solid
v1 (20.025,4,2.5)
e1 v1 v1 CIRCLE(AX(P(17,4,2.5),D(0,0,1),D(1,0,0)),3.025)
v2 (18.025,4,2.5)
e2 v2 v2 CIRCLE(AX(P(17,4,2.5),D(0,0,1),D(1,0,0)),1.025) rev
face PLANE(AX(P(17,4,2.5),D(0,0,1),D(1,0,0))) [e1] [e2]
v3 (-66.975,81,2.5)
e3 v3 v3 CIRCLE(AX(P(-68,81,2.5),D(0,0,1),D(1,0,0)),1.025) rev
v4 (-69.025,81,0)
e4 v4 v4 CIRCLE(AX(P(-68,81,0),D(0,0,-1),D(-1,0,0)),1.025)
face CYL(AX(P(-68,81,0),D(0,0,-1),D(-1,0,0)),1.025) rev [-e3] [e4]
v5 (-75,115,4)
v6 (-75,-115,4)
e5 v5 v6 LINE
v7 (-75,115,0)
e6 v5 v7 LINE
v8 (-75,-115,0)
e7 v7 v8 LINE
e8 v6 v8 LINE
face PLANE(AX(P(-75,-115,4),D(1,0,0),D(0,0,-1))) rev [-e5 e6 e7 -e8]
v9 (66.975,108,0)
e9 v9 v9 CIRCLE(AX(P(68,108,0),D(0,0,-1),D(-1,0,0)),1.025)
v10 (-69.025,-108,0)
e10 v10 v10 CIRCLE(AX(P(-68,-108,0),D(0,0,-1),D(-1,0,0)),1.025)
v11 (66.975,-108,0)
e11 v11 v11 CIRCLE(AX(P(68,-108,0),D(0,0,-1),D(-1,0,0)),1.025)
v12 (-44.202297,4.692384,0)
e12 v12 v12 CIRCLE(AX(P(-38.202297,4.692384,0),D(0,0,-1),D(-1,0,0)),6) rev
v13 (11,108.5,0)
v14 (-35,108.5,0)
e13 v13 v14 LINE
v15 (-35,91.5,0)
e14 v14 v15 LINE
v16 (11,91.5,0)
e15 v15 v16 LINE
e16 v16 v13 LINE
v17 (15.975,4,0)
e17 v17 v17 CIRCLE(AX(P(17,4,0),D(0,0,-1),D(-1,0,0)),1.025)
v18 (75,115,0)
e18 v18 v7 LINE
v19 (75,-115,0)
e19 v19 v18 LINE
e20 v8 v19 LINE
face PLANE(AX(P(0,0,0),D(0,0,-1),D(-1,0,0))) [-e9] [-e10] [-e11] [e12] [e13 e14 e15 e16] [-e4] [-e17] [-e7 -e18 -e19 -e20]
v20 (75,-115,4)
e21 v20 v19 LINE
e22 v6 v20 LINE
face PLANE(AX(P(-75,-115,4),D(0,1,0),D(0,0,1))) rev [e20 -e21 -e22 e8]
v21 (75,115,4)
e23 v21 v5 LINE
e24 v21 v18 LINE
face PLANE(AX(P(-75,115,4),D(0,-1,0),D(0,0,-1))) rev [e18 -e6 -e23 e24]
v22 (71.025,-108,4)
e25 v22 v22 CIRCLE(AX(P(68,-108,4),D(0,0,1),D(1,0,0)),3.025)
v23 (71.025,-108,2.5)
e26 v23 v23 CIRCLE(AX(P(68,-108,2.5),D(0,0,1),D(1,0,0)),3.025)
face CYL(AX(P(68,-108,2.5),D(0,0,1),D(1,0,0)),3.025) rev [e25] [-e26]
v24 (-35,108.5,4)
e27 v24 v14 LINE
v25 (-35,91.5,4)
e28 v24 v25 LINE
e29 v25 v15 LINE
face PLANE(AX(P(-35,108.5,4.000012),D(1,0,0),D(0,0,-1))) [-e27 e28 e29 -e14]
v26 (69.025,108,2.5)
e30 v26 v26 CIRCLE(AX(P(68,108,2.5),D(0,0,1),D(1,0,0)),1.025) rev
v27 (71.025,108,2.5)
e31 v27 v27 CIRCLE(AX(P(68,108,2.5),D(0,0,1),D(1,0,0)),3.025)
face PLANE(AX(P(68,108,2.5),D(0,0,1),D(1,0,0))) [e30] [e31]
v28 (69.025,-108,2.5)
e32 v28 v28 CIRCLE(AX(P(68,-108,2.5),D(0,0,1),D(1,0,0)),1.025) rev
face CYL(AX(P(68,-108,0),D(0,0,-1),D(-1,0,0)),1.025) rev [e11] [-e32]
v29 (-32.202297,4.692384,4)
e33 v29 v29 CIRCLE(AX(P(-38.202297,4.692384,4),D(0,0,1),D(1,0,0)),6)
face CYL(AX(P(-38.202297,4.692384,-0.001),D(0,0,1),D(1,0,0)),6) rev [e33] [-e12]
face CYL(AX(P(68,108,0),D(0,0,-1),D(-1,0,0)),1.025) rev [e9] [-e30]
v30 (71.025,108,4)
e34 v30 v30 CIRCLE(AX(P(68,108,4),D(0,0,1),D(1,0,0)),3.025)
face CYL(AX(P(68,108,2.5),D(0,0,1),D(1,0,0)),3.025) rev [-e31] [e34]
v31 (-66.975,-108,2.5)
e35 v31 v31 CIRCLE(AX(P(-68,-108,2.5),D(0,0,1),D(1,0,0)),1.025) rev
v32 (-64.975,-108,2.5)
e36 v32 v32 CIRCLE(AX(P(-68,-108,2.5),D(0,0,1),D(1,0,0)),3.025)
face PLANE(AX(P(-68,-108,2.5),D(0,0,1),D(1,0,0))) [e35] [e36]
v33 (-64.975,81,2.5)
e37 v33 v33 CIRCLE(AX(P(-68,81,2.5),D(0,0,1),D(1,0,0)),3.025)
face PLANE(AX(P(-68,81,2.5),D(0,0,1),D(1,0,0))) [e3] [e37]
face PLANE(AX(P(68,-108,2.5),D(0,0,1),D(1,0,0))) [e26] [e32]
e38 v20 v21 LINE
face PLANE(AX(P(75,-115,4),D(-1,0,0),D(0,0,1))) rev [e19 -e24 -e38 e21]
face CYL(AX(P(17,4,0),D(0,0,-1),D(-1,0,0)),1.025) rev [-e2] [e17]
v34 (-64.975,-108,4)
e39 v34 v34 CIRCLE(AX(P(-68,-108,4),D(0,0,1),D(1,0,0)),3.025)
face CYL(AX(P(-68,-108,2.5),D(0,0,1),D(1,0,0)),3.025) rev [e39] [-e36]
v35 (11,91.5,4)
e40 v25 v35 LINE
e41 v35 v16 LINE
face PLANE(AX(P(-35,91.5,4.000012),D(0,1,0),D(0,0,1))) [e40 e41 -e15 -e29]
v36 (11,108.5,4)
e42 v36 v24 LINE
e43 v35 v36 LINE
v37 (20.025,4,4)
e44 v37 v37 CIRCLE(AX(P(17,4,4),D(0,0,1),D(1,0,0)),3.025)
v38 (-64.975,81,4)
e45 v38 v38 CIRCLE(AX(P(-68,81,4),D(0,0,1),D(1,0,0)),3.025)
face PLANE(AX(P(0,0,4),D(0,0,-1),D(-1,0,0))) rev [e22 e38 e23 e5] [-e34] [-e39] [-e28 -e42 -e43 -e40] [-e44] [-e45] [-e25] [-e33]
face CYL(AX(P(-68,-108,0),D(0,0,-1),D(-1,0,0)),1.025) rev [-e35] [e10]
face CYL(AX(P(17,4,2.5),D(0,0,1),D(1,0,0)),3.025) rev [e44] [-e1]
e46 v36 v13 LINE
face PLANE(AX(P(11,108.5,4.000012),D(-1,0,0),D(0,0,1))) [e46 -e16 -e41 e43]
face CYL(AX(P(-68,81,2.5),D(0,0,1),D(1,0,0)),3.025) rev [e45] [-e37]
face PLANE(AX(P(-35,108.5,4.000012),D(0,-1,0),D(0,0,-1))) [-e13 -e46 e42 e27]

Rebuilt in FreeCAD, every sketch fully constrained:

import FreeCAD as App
import Part
import Sketcher
Q = App.Units.Quantity

doc = App.newDocument("Part")
body = doc.addObject("PartDesign::Body", "Body")

sketch1 = body.newObject("Sketcher::SketchObject", "Sketch")
sketch1.AttachmentSupport = (doc.getObject("XY_Plane"), [""])
sketch1.MapMode = "FlatFace"
sketch1.addGeometry([
    Part.LineSegment(App.Vector(-75, 115, 0), App.Vector(-75, -115, 0)),
    Part.LineSegment(App.Vector(-75, -115, 0), App.Vector(75, -115, 0)),
    Part.LineSegment(App.Vector(75, -115, 0), App.Vector(75, 115, 0)),
    Part.LineSegment(App.Vector(75, 115, 0), App.Vector(-75, 115, 0)),
], False)
sketch1.addConstraint([
    Sketcher.Constraint("Coincident", 0, 2, 1, 1),
    Sketcher.Constraint("Coincident", 1, 2, 2, 1),
    Sketcher.Constraint("Coincident", 2, 2, 3, 1),
    Sketcher.Constraint("Coincident", 3, 2, 0, 1),
    Sketcher.Constraint("Vertical", 0),
    Sketcher.Constraint("Horizontal", 1),
    Sketcher.Constraint("Vertical", 2),
    Sketcher.Constraint("Horizontal", 3),
    Sketcher.Constraint("Symmetric", 0, 2, 2, 2, -1, 1),
    Sketcher.Constraint("DistanceX", 1, 1, 1, 2, Q("150 mm")),
    Sketcher.Constraint("DistanceY", 0, 2, 0, 1, Q("230 mm")),
])
pad1 = body.newObject("PartDesign::Pad", "Pad")
pad1.Profile = sketch1
pad1.Length = 4

sketch2 = body.newObject("Sketcher::SketchObject", "Sketch001")
sketch2.AttachmentSupport = (doc.getObject("XY_Plane"), [""])
sketch2.MapMode = "FlatFace"
sketch2.addGeometry([
    Part.Circle(App.Vector(68, 108, 0), App.Vector(0, 0, 1), 1),
    Part.Circle(App.Vector(-68, 81, 0), App.Vector(0, 0, 1), 1),
    Part.Circle(App.Vector(68, -108, 0), App.Vector(0, 0, 1), 1),
    Part.Circle(App.Vector(-68, -108, 0), App.Vector(0, 0, 1), 1),
    Part.Circle(App.Vector(17, 4, 0), App.Vector(0, 0, 1), 1),
], False)
sketch2.addConstraint([
    Sketcher.Constraint("Equal", 0, 1),
    Sketcher.Constraint("Equal", 1, 2),
    Sketcher.Constraint("Equal", 2, 3),
    Sketcher.Constraint("Equal", 3, 4),
    Sketcher.Constraint("Symmetric", 0, 3, 3, 3, -1, 1),
    Sketcher.Constraint("Symmetric", 2, 3, 3, 3, -2),
    Sketcher.Constraint("Vertical", 1, 3, 3, 3),
    Sketcher.Constraint("Diameter", 0, Q("2.05 mm")),
    Sketcher.Constraint("DistanceX", -1, 1, 0, 3, Q("68 mm")),
    Sketcher.Constraint("DistanceY", -1, 1, 0, 3, Q("108 mm")),
    Sketcher.Constraint("DistanceY", -1, 1, 1, 3, Q("81 mm")),
    Sketcher.Constraint("DistanceX", -1, 1, 4, 3, Q("17 mm")),
    Sketcher.Constraint("DistanceY", -1, 1, 4, 3, Q("4 mm")),
])
doc.recompute()
hole = body.newObject("PartDesign::Hole", "Hole")
hole.Profile = sketch2
hole.ThreadType = "None"
hole.Diameter = 2.05
hole.DepthType = "ThroughAll"
hole.Reversed = True

sketch3 = body.newObject("Sketcher::SketchObject", "Sketch002")
sketch3.AttachmentSupport = (doc.getObject("XY_Plane"), [""])
sketch3.MapMode = "FlatFace"
sketch3.AttachmentOffset = App.Placement(App.Vector(0, 0, 4), App.Rotation())
sketch3.addGeometry([
    Part.Circle(App.Vector(-68, 81, 0), App.Vector(0, 0, 1), 3),
    Part.Circle(App.Vector(68, 108, 0), App.Vector(0, 0, 1), 3),
    Part.Circle(App.Vector(-68, -108, 0), App.Vector(0, 0, 1), 3),
    Part.Circle(App.Vector(68, -108, 0), App.Vector(0, 0, 1), 3),
    Part.Circle(App.Vector(17, 4, 0), App.Vector(0, 0, 1), 3),
], False)
sketch3.addConstraint([
    Sketcher.Constraint("Equal", 0, 1),
    Sketcher.Constraint("Equal", 1, 2),
    Sketcher.Constraint("Equal", 2, 3),
    Sketcher.Constraint("Equal", 3, 4),
    Sketcher.Constraint("Symmetric", 1, 3, 2, 3, -1, 1),
    Sketcher.Constraint("Symmetric", 2, 3, 3, 3, -2),
    Sketcher.Constraint("Vertical", 0, 3, 2, 3),
    Sketcher.Constraint("Diameter", 0, Q("6.05 mm")),
    Sketcher.Constraint("DistanceX", 0, 3, -1, 1, Q("68 mm")),
    Sketcher.Constraint("DistanceY", -1, 1, 0, 3, Q("81 mm")),
    Sketcher.Constraint("DistanceY", -1, 1, 1, 3, Q("108 mm")),
    Sketcher.Constraint("DistanceX", -1, 1, 4, 3, Q("17 mm")),
    Sketcher.Constraint("DistanceY", -1, 1, 4, 3, Q("4 mm")),
])
pocket1 = body.newObject("PartDesign::Pocket", "Pocket")
pocket1.Profile = sketch3
pocket1.Length = 1.5

sketch4 = body.newObject("Sketcher::SketchObject", "Sketch003")
sketch4.AttachmentSupport = (doc.getObject("XY_Plane"), [""])
sketch4.MapMode = "FlatFace"
sketch4.AttachmentOffset = App.Placement(App.Vector(0, 0, 4), App.Rotation())
sketch4.addGeometry([
    Part.LineSegment(App.Vector(-35, 108, 0), App.Vector(-35, 92, 0)),
    Part.LineSegment(App.Vector(-35, 92, 0), App.Vector(11, 92, 0)),
    Part.LineSegment(App.Vector(11, 92, 0), App.Vector(11, 108, 0)),
    Part.LineSegment(App.Vector(11, 108, 0), App.Vector(-35, 108, 0)),
], False)
sketch4.addConstraint([
    Sketcher.Constraint("Coincident", 0, 2, 1, 1),
    Sketcher.Constraint("Coincident", 1, 2, 2, 1),
    Sketcher.Constraint("Coincident", 2, 2, 3, 1),
    Sketcher.Constraint("Coincident", 3, 2, 0, 1),
    Sketcher.Constraint("Vertical", 0),
    Sketcher.Constraint("Horizontal", 1),
    Sketcher.Constraint("Vertical", 2),
    Sketcher.Constraint("Horizontal", 3),
    Sketcher.Constraint("DistanceX", 1, 1, 1, 2, Q("46 mm")),
    Sketcher.Constraint("DistanceY", 0, 2, 0, 1, Q("17 mm")),
    Sketcher.Constraint("DistanceX", 0, 2, -1, 1, Q("35 mm")),
    Sketcher.Constraint("DistanceY", -1, 1, 0, 2, Q("91.5 mm")),
])
pocket2 = body.newObject("PartDesign::Pocket", "Pocket001")
pocket2.Profile = sketch4
pocket2.Type = "UpToFirst"

sketch5 = body.newObject("Sketcher::SketchObject", "Sketch004")
sketch5.AttachmentSupport = (doc.getObject("XY_Plane"), [""])
sketch5.MapMode = "FlatFace"
sketch5.AttachmentOffset = App.Placement(App.Vector(0, 0, 4), App.Rotation())
sketch5.addGeometry([
    Part.LineSegment(App.Vector(-35, 108, 0), App.Vector(-35, 92, 0)),
    Part.LineSegment(App.Vector(-35, 92, 0), App.Vector(11, 92, 0)),
    Part.LineSegment(App.Vector(11, 92, 0), App.Vector(11, 108, 0)),
    Part.LineSegment(App.Vector(11, 108, 0), App.Vector(-35, 108, 0)),
], False)
sketch5.addConstraint([
    Sketcher.Constraint("Coincident", 0, 2, 1, 1),
    Sketcher.Constraint("Coincident", 1, 2, 2, 1),
    Sketcher.Constraint("Coincident", 2, 2, 3, 1),
    Sketcher.Constraint("Coincident", 3, 2, 0, 1),
    Sketcher.Constraint("Vertical", 0),
    Sketcher.Constraint("Horizontal", 1),
    Sketcher.Constraint("Vertical", 2),
    Sketcher.Constraint("Horizontal", 3),
    Sketcher.Constraint("DistanceX", 1, 1, 1, 2, Q("46 mm")),
    Sketcher.Constraint("DistanceY", 0, 2, 0, 1, Q("17 mm")),
    Sketcher.Constraint("DistanceX", 0, 2, -1, 1, Q("35 mm")),
    Sketcher.Constraint("DistanceY", -1, 1, 0, 2, Q("91.5 mm")),
])
pocket3 = body.newObject("PartDesign::Pocket", "Pocket002")
pocket3.Profile = sketch5
pocket3.Length = 138.353558
pocket3.Reversed = True

sketch6 = body.newObject("Sketcher::SketchObject", "Sketch005")
sketch6.AttachmentSupport = (doc.getObject("XY_Plane"), [""])
sketch6.MapMode = "FlatFace"
sketch6.AttachmentOffset = App.Placement(App.Vector(0, 0, 4), App.Rotation())
sketch6.addGeometry(Part.Circle(App.Vector(-38, 5, 0), App.Vector(0, 0, 1), 6), False)
sketch6.addConstraint([
    Sketcher.Constraint("Diameter", 0, Q("12 mm")),
    Sketcher.Constraint("DistanceX", 0, 3, -1, 1, Q("38.202297 mm")),
    Sketcher.Constraint("DistanceY", -1, 1, 0, 3, Q("4.692384 mm")),
])
pocket4 = body.newObject("PartDesign::Pocket", "Pocket003")
pocket4.Profile = sketch6
pocket4.Type = "UpToFirst"

doc.recompute()
